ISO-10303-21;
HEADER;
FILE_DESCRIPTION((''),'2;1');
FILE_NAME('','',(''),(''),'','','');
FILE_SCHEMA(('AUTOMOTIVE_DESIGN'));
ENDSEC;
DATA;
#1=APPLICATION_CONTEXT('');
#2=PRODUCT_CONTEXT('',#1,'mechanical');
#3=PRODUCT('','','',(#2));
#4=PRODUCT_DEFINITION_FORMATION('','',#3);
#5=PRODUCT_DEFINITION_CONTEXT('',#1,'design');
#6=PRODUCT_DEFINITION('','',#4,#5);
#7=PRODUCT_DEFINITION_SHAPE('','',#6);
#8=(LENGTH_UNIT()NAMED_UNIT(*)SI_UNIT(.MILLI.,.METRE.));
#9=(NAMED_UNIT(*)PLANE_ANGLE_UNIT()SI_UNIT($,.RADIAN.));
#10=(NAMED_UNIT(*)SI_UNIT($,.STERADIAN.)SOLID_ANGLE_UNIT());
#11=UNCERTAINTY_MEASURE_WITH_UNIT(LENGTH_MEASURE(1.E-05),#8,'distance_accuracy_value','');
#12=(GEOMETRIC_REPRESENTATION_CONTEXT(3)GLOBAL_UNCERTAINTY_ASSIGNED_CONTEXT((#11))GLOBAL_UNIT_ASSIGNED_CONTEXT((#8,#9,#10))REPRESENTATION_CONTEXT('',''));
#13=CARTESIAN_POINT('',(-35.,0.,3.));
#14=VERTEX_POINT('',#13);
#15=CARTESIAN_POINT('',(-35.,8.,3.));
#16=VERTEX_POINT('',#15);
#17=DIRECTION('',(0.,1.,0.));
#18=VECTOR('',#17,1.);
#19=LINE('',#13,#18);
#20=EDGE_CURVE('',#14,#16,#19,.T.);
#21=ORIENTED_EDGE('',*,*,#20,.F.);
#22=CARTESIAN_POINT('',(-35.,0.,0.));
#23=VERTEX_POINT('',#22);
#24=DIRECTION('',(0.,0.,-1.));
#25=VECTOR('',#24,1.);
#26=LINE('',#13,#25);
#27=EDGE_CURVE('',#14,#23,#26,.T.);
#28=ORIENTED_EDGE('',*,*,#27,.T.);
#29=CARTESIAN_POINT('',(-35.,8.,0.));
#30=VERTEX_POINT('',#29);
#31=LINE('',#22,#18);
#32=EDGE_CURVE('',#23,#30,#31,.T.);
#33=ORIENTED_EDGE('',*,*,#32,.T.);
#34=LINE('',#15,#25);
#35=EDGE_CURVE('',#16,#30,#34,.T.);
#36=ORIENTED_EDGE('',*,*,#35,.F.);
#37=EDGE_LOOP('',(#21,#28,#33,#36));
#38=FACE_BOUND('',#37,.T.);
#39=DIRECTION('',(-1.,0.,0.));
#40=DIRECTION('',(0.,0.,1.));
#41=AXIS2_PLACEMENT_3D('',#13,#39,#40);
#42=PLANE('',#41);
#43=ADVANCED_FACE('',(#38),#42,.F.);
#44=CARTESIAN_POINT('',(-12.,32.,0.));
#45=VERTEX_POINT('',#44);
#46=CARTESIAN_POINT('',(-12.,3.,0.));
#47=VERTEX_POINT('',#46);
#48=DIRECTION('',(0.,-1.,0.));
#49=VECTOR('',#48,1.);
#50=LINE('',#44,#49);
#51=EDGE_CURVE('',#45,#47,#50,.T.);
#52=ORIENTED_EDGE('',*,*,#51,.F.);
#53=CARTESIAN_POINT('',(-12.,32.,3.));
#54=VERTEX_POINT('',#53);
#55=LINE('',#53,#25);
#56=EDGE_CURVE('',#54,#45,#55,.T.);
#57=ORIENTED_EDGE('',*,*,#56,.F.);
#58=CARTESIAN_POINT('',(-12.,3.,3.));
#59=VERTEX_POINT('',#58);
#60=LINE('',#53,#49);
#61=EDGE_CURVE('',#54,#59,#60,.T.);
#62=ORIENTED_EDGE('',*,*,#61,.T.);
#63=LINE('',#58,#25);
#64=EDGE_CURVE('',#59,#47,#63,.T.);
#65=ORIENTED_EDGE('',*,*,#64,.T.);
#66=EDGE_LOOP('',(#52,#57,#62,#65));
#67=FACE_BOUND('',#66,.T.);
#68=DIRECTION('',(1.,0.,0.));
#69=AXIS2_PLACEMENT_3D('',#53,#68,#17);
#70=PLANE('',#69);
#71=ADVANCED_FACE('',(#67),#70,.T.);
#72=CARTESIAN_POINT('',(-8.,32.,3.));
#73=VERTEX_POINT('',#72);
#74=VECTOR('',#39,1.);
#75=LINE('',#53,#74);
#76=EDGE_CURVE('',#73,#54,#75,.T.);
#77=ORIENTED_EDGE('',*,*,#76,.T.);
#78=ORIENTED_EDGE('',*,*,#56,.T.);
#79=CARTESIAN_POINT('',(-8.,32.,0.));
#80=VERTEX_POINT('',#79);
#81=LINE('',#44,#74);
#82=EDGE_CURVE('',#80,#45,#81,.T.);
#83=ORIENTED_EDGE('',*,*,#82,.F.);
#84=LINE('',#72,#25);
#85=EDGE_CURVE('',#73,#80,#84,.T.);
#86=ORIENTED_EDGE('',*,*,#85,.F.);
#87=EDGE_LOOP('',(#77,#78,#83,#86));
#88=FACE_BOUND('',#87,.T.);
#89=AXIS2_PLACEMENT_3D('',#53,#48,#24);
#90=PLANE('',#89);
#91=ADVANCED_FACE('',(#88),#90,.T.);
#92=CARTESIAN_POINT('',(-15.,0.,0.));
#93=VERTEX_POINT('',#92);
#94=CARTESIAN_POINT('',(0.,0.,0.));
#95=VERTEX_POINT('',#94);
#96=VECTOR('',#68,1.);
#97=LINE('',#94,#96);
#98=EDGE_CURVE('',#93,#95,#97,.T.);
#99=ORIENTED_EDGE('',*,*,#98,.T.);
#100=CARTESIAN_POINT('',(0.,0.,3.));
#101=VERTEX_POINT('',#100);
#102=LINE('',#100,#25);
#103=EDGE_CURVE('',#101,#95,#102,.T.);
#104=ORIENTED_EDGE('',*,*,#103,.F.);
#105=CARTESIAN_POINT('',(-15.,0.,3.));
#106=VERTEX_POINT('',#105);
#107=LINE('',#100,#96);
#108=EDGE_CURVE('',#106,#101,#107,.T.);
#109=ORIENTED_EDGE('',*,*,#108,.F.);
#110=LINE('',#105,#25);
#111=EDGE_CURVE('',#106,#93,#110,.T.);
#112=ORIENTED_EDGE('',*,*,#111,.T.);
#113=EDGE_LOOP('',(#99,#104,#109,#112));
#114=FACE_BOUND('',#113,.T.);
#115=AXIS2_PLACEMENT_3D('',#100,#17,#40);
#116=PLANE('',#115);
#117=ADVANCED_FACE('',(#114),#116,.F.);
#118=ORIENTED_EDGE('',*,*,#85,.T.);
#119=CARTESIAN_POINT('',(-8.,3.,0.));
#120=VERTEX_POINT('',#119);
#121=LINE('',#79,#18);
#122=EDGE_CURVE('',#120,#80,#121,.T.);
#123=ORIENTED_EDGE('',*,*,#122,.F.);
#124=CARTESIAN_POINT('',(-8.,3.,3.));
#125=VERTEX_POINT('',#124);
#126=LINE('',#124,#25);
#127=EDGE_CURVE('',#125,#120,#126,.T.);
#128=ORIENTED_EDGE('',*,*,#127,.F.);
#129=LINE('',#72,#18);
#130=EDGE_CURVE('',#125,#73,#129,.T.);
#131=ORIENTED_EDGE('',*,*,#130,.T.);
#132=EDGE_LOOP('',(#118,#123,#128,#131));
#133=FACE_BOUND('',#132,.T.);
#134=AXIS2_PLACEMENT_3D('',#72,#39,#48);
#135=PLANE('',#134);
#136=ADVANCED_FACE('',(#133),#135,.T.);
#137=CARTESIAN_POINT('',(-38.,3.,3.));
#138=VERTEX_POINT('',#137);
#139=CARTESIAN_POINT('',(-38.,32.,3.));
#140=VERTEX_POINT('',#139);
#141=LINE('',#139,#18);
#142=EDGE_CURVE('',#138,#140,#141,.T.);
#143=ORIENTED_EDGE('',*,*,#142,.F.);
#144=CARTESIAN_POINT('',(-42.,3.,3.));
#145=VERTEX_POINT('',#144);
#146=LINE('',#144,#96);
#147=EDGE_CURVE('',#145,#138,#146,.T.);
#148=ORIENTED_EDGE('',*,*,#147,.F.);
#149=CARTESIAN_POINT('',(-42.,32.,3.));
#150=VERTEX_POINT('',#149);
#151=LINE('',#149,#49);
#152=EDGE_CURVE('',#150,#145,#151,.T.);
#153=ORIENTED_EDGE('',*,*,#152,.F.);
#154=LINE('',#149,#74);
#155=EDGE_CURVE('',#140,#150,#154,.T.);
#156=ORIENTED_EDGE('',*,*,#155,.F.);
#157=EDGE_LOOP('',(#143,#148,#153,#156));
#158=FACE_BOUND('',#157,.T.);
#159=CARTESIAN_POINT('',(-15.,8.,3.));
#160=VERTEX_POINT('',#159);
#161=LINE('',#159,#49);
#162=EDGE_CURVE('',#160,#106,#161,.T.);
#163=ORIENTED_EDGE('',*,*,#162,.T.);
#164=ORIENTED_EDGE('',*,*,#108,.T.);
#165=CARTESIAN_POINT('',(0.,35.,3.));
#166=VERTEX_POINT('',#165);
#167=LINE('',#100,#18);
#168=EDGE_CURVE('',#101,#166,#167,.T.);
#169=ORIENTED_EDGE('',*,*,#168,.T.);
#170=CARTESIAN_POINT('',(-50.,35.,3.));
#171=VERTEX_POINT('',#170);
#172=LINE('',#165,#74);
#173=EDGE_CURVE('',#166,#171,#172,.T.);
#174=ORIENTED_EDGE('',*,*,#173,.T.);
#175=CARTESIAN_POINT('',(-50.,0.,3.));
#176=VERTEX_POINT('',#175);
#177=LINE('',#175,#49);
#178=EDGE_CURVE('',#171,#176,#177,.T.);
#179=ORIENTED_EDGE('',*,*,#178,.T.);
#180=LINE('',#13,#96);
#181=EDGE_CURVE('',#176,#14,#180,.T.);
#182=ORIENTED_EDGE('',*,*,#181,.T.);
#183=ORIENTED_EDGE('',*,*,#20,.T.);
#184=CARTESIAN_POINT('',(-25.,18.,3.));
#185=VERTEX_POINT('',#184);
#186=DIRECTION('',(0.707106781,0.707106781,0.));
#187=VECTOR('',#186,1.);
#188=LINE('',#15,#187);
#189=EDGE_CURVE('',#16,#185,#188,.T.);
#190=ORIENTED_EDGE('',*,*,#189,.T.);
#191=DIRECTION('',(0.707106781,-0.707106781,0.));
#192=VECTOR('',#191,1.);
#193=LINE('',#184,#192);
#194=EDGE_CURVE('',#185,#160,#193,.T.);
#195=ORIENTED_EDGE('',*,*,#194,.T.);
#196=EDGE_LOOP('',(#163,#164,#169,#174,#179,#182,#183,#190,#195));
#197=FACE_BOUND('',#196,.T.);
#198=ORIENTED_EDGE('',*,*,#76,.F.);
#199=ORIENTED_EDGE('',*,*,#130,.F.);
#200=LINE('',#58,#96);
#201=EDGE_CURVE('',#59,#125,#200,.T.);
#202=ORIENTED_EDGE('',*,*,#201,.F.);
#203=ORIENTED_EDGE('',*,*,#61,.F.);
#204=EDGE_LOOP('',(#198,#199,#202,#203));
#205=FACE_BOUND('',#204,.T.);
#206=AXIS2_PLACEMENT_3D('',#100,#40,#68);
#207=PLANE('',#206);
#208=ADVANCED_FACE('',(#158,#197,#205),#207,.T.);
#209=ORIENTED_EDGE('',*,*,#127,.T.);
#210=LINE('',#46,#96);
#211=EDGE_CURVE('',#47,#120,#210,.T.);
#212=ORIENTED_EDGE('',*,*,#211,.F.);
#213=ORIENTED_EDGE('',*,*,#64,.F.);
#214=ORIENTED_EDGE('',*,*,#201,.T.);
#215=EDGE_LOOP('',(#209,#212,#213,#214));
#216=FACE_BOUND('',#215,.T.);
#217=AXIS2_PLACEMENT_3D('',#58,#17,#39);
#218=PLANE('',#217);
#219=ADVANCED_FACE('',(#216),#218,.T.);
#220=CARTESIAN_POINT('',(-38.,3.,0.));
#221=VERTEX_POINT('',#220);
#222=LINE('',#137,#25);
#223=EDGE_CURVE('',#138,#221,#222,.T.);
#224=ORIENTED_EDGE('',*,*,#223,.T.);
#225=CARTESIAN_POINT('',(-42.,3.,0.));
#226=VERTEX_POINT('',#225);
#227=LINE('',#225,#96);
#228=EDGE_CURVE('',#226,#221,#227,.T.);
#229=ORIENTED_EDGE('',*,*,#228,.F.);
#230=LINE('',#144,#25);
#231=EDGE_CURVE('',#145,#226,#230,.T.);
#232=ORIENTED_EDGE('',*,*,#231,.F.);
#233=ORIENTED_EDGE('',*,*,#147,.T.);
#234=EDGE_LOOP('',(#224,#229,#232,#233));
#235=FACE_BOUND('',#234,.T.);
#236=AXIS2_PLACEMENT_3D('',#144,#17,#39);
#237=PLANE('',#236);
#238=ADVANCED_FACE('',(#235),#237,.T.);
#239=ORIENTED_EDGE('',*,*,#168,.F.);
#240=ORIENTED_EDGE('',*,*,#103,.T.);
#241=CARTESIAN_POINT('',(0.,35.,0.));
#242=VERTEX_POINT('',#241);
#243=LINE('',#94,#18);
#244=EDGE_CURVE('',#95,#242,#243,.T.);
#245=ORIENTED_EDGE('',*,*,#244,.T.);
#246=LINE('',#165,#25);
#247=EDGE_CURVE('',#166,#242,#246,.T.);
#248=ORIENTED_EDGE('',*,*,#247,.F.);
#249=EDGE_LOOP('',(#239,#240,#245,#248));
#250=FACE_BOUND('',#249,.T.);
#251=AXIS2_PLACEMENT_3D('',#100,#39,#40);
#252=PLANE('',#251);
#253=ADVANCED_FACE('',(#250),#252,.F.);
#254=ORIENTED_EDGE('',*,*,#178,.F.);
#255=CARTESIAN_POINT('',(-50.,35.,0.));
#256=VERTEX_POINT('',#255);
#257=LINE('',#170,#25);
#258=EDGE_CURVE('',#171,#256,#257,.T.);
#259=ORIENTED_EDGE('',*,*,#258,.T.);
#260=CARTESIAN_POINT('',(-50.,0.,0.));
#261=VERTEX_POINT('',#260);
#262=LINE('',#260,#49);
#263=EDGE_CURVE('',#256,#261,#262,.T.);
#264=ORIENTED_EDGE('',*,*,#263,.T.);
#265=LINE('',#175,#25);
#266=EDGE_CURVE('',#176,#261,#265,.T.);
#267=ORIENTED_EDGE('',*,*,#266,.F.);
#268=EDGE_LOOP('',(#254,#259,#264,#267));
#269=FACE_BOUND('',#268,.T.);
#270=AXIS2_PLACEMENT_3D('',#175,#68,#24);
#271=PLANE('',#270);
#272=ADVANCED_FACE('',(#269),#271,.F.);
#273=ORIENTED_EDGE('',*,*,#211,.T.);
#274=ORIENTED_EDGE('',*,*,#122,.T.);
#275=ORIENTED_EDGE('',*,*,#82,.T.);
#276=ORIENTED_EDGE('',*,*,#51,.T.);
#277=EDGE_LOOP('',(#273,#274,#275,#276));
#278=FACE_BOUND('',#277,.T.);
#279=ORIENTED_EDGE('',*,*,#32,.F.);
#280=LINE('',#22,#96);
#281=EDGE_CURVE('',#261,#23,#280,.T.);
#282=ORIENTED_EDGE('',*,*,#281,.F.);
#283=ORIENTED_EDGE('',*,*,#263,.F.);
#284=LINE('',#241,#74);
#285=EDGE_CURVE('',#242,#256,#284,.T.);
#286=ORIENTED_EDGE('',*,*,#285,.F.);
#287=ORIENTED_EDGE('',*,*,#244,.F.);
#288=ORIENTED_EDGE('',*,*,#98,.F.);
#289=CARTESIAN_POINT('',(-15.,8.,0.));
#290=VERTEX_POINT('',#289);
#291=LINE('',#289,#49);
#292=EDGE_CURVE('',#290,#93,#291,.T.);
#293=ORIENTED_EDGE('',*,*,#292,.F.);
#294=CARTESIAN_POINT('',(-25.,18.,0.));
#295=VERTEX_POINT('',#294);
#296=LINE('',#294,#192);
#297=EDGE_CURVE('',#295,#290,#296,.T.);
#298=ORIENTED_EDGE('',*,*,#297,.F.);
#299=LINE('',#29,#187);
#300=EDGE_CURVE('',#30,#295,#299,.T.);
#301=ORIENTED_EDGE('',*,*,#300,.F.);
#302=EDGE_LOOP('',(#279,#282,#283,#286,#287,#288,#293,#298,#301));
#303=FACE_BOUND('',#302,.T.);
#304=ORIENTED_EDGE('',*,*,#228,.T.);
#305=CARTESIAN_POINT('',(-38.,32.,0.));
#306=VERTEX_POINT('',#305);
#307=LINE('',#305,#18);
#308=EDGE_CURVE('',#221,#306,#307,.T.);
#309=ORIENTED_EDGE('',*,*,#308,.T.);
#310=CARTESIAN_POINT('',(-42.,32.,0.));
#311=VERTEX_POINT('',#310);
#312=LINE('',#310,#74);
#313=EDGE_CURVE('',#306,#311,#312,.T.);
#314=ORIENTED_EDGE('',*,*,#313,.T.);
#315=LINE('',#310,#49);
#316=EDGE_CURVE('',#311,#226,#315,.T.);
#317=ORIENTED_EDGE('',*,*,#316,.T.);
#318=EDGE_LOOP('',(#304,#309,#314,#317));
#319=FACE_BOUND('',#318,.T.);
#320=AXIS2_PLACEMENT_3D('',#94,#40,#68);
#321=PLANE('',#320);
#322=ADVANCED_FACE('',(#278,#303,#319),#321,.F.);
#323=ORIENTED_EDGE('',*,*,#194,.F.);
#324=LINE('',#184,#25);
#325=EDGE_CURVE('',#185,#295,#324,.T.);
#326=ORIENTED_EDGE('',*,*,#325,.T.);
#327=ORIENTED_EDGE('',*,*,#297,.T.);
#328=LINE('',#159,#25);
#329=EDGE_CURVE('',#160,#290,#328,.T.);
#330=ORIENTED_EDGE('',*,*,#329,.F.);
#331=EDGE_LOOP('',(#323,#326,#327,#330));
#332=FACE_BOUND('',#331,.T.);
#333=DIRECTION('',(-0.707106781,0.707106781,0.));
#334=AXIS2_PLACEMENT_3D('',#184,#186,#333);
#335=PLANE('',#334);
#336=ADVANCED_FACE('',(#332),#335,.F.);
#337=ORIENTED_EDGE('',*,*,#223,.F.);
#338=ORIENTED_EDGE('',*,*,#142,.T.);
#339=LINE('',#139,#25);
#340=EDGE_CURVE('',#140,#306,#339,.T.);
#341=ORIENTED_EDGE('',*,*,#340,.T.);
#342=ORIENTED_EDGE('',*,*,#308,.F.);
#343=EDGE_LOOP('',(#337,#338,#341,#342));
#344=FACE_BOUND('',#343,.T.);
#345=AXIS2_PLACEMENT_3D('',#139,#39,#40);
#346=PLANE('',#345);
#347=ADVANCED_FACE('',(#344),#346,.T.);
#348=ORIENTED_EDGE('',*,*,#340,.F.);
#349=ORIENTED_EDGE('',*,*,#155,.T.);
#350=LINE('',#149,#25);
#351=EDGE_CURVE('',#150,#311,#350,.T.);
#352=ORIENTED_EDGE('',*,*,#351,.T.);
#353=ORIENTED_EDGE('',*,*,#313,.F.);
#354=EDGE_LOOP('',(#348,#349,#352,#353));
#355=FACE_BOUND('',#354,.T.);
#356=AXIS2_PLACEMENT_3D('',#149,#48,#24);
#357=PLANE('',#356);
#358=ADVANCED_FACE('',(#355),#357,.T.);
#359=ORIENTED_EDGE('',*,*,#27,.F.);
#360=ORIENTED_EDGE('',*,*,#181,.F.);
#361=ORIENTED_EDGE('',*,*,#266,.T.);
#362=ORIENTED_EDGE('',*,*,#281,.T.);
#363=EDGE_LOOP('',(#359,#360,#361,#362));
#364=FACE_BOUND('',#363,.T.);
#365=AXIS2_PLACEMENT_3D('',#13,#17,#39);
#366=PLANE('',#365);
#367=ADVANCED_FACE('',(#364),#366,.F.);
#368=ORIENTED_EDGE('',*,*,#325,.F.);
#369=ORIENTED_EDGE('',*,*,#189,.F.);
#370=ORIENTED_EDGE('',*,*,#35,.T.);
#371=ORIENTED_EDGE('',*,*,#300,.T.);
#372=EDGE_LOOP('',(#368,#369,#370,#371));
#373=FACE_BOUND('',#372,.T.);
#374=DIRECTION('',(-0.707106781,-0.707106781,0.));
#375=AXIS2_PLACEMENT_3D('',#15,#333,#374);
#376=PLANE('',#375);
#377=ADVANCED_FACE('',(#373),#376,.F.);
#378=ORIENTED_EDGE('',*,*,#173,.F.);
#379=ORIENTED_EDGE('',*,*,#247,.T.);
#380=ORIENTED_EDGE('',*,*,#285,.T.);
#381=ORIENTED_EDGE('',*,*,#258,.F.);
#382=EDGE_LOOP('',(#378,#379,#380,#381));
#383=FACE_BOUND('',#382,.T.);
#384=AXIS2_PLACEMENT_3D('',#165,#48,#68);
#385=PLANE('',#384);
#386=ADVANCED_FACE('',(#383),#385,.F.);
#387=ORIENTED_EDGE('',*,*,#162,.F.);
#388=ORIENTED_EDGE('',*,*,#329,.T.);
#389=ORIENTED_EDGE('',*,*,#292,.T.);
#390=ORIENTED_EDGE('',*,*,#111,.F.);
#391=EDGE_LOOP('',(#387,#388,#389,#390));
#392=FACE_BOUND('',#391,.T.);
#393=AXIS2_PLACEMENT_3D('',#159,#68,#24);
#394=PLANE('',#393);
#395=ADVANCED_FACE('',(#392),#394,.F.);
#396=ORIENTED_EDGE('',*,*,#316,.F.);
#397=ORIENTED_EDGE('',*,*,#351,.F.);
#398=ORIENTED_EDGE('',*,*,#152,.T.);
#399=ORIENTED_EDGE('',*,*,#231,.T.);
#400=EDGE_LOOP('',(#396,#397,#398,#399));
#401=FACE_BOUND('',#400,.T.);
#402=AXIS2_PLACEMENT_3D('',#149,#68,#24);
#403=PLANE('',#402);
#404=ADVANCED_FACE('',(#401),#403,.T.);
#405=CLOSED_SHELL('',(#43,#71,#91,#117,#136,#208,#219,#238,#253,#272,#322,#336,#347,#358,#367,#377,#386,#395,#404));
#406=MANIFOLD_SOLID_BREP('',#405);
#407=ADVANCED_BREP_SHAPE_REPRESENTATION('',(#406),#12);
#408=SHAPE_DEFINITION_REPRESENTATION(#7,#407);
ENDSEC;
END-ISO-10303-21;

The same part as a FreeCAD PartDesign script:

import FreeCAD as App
import Part
import Sketcher

V = App.Vector


def add_polygon(sketch, points):
    """Adds a closed chain of lines whose ends are joined by coincident constraints."""
    first, n = sketch.GeometryCount, len(points)
    for a, b in zip(points, points[1:] + points[:1]):
        sketch.addGeometry(Part.LineSegment(App.Vector(*a, 0), App.Vector(*b, 0)), False)
    for i in range(n):
        sketch.addConstraint(Sketcher.Constraint("Coincident", first + i, 2, first + (i + 1) % n, 1))

doc = App.newDocument("Part")
params = doc.addObject("Spreadsheet::Sheet", "Params")
for row, (alias, value) in enumerate([
    ("sketch1_width", "15 mm"),
    ("sketch1_width2", "50 mm"),
    ("sketch1_width3", "4 mm"),
    ("sketch1_height", "8 mm"),
    ("sketch1_height2", "35 mm"),
    ("pad1_length", "3 mm"),
], start=1):
    params.set(f"A{row}", alias)
    params.set(f"B{row}", "=" + value)
    params.setAlias(f"B{row}", alias)

body = doc.addObject("PartDesign::Body", "Body")

# Sketch on XY plane
sketch1 = body.newObject("Sketcher::SketchObject", "Sketch")
sketch1.AttachmentSupport = (doc.getObject("XY_Plane"), [""])
sketch1.MapMode = "FlatFace"
add_polygon(sketch1, [(-35, 0), (-35, 8), (-25, 18), (-15, 8), (-15, 0), (0, 0), (0, 35), (-50, 35), (-50, 0)])  # lines 0-8
add_polygon(sketch1, [(-38, 3), (-42, 3), (-42, 32), (-38, 32)])  # lines 9-12
add_polygon(sketch1, [(-8, 3), (-12, 3), (-12, 32), (-8, 32)])  # lines 13-16
sketch1.addConstraint([
    Sketcher.Constraint("Vertical", 0),
    Sketcher.Constraint("Vertical", 3),
    Sketcher.Constraint("Horizontal", 4),
    Sketcher.Constraint("Vertical", 5),
    Sketcher.Constraint("Horizontal", 6),
    Sketcher.Constraint("Vertical", 7),
    Sketcher.Constraint("Horizontal", 8),
    Sketcher.Constraint("Horizontal", 9),
    Sketcher.Constraint("Vertical", 10),
    Sketcher.Constraint("Horizontal", 11),
    Sketcher.Constraint("Vertical", 12),
    Sketcher.Constraint("Horizontal", 13),
    Sketcher.Constraint("Vertical", 14),
    Sketcher.Constraint("Horizontal", 15),
    Sketcher.Constraint("Vertical", 16),
    Sketcher.Constraint("Coincident", 4, 2, -1, 1),
    Sketcher.Constraint("PointOnObject", 7, 2, -1),
    Sketcher.Constraint("Perpendicular", 1, 2),
    Sketcher.Constraint("Horizontal", 0, 2, 2, 2),
    Sketcher.Constraint("Horizontal", 12, 2, 13, 2),
    Sketcher.Constraint("Horizontal", 11, 2, 14, 2),
    Sketcher.Constraint("Equal", 4, 8),
    Sketcher.Constraint("Equal", 11, 13),
    Sketcher.Constraint("Equal", 1, 2),
    Sketcher.Constraint("DistanceX", 4, 1, 4, 2, 15.0),
    Sketcher.Constraint("DistanceX", 6, 2, 6, 1, 50.0),
    Sketcher.Constraint("DistanceX", 9, 2, 9, 1, 4.0),
    Sketcher.Constraint("DistanceY", 0, 1, 0, 2, 8.0),
    Sketcher.Constraint("DistanceY", 5, 1, 5, 2, 35.0),
    Sketcher.Constraint("DistanceY", 10, 1, 10, 2, 29.0),
    Sketcher.Constraint("DistanceX", 9, 2, -1, 1, 42.0),
    Sketcher.Constraint("DistanceY", -1, 1, 9, 2, 3.0),
    Sketcher.Constraint("DistanceX", 13, 2, -1, 1, 12.0),
])
sketch1.setExpression("Constraints[41]", "Params.sketch1_width")
sketch1.setExpression("Constraints[42]", "Params.sketch1_width2")
sketch1.setExpression("Constraints[43]", "Params.sketch1_width3")
sketch1.setExpression("Constraints[44]", "Params.sketch1_height")
sketch1.setExpression("Constraints[45]", "Params.sketch1_height2")
pad1 = body.newObject("PartDesign::Pad", "Pad")
pad1.Profile = sketch1
pad1.setExpression("Length", "Params.pad1_length")

doc.recompute()
